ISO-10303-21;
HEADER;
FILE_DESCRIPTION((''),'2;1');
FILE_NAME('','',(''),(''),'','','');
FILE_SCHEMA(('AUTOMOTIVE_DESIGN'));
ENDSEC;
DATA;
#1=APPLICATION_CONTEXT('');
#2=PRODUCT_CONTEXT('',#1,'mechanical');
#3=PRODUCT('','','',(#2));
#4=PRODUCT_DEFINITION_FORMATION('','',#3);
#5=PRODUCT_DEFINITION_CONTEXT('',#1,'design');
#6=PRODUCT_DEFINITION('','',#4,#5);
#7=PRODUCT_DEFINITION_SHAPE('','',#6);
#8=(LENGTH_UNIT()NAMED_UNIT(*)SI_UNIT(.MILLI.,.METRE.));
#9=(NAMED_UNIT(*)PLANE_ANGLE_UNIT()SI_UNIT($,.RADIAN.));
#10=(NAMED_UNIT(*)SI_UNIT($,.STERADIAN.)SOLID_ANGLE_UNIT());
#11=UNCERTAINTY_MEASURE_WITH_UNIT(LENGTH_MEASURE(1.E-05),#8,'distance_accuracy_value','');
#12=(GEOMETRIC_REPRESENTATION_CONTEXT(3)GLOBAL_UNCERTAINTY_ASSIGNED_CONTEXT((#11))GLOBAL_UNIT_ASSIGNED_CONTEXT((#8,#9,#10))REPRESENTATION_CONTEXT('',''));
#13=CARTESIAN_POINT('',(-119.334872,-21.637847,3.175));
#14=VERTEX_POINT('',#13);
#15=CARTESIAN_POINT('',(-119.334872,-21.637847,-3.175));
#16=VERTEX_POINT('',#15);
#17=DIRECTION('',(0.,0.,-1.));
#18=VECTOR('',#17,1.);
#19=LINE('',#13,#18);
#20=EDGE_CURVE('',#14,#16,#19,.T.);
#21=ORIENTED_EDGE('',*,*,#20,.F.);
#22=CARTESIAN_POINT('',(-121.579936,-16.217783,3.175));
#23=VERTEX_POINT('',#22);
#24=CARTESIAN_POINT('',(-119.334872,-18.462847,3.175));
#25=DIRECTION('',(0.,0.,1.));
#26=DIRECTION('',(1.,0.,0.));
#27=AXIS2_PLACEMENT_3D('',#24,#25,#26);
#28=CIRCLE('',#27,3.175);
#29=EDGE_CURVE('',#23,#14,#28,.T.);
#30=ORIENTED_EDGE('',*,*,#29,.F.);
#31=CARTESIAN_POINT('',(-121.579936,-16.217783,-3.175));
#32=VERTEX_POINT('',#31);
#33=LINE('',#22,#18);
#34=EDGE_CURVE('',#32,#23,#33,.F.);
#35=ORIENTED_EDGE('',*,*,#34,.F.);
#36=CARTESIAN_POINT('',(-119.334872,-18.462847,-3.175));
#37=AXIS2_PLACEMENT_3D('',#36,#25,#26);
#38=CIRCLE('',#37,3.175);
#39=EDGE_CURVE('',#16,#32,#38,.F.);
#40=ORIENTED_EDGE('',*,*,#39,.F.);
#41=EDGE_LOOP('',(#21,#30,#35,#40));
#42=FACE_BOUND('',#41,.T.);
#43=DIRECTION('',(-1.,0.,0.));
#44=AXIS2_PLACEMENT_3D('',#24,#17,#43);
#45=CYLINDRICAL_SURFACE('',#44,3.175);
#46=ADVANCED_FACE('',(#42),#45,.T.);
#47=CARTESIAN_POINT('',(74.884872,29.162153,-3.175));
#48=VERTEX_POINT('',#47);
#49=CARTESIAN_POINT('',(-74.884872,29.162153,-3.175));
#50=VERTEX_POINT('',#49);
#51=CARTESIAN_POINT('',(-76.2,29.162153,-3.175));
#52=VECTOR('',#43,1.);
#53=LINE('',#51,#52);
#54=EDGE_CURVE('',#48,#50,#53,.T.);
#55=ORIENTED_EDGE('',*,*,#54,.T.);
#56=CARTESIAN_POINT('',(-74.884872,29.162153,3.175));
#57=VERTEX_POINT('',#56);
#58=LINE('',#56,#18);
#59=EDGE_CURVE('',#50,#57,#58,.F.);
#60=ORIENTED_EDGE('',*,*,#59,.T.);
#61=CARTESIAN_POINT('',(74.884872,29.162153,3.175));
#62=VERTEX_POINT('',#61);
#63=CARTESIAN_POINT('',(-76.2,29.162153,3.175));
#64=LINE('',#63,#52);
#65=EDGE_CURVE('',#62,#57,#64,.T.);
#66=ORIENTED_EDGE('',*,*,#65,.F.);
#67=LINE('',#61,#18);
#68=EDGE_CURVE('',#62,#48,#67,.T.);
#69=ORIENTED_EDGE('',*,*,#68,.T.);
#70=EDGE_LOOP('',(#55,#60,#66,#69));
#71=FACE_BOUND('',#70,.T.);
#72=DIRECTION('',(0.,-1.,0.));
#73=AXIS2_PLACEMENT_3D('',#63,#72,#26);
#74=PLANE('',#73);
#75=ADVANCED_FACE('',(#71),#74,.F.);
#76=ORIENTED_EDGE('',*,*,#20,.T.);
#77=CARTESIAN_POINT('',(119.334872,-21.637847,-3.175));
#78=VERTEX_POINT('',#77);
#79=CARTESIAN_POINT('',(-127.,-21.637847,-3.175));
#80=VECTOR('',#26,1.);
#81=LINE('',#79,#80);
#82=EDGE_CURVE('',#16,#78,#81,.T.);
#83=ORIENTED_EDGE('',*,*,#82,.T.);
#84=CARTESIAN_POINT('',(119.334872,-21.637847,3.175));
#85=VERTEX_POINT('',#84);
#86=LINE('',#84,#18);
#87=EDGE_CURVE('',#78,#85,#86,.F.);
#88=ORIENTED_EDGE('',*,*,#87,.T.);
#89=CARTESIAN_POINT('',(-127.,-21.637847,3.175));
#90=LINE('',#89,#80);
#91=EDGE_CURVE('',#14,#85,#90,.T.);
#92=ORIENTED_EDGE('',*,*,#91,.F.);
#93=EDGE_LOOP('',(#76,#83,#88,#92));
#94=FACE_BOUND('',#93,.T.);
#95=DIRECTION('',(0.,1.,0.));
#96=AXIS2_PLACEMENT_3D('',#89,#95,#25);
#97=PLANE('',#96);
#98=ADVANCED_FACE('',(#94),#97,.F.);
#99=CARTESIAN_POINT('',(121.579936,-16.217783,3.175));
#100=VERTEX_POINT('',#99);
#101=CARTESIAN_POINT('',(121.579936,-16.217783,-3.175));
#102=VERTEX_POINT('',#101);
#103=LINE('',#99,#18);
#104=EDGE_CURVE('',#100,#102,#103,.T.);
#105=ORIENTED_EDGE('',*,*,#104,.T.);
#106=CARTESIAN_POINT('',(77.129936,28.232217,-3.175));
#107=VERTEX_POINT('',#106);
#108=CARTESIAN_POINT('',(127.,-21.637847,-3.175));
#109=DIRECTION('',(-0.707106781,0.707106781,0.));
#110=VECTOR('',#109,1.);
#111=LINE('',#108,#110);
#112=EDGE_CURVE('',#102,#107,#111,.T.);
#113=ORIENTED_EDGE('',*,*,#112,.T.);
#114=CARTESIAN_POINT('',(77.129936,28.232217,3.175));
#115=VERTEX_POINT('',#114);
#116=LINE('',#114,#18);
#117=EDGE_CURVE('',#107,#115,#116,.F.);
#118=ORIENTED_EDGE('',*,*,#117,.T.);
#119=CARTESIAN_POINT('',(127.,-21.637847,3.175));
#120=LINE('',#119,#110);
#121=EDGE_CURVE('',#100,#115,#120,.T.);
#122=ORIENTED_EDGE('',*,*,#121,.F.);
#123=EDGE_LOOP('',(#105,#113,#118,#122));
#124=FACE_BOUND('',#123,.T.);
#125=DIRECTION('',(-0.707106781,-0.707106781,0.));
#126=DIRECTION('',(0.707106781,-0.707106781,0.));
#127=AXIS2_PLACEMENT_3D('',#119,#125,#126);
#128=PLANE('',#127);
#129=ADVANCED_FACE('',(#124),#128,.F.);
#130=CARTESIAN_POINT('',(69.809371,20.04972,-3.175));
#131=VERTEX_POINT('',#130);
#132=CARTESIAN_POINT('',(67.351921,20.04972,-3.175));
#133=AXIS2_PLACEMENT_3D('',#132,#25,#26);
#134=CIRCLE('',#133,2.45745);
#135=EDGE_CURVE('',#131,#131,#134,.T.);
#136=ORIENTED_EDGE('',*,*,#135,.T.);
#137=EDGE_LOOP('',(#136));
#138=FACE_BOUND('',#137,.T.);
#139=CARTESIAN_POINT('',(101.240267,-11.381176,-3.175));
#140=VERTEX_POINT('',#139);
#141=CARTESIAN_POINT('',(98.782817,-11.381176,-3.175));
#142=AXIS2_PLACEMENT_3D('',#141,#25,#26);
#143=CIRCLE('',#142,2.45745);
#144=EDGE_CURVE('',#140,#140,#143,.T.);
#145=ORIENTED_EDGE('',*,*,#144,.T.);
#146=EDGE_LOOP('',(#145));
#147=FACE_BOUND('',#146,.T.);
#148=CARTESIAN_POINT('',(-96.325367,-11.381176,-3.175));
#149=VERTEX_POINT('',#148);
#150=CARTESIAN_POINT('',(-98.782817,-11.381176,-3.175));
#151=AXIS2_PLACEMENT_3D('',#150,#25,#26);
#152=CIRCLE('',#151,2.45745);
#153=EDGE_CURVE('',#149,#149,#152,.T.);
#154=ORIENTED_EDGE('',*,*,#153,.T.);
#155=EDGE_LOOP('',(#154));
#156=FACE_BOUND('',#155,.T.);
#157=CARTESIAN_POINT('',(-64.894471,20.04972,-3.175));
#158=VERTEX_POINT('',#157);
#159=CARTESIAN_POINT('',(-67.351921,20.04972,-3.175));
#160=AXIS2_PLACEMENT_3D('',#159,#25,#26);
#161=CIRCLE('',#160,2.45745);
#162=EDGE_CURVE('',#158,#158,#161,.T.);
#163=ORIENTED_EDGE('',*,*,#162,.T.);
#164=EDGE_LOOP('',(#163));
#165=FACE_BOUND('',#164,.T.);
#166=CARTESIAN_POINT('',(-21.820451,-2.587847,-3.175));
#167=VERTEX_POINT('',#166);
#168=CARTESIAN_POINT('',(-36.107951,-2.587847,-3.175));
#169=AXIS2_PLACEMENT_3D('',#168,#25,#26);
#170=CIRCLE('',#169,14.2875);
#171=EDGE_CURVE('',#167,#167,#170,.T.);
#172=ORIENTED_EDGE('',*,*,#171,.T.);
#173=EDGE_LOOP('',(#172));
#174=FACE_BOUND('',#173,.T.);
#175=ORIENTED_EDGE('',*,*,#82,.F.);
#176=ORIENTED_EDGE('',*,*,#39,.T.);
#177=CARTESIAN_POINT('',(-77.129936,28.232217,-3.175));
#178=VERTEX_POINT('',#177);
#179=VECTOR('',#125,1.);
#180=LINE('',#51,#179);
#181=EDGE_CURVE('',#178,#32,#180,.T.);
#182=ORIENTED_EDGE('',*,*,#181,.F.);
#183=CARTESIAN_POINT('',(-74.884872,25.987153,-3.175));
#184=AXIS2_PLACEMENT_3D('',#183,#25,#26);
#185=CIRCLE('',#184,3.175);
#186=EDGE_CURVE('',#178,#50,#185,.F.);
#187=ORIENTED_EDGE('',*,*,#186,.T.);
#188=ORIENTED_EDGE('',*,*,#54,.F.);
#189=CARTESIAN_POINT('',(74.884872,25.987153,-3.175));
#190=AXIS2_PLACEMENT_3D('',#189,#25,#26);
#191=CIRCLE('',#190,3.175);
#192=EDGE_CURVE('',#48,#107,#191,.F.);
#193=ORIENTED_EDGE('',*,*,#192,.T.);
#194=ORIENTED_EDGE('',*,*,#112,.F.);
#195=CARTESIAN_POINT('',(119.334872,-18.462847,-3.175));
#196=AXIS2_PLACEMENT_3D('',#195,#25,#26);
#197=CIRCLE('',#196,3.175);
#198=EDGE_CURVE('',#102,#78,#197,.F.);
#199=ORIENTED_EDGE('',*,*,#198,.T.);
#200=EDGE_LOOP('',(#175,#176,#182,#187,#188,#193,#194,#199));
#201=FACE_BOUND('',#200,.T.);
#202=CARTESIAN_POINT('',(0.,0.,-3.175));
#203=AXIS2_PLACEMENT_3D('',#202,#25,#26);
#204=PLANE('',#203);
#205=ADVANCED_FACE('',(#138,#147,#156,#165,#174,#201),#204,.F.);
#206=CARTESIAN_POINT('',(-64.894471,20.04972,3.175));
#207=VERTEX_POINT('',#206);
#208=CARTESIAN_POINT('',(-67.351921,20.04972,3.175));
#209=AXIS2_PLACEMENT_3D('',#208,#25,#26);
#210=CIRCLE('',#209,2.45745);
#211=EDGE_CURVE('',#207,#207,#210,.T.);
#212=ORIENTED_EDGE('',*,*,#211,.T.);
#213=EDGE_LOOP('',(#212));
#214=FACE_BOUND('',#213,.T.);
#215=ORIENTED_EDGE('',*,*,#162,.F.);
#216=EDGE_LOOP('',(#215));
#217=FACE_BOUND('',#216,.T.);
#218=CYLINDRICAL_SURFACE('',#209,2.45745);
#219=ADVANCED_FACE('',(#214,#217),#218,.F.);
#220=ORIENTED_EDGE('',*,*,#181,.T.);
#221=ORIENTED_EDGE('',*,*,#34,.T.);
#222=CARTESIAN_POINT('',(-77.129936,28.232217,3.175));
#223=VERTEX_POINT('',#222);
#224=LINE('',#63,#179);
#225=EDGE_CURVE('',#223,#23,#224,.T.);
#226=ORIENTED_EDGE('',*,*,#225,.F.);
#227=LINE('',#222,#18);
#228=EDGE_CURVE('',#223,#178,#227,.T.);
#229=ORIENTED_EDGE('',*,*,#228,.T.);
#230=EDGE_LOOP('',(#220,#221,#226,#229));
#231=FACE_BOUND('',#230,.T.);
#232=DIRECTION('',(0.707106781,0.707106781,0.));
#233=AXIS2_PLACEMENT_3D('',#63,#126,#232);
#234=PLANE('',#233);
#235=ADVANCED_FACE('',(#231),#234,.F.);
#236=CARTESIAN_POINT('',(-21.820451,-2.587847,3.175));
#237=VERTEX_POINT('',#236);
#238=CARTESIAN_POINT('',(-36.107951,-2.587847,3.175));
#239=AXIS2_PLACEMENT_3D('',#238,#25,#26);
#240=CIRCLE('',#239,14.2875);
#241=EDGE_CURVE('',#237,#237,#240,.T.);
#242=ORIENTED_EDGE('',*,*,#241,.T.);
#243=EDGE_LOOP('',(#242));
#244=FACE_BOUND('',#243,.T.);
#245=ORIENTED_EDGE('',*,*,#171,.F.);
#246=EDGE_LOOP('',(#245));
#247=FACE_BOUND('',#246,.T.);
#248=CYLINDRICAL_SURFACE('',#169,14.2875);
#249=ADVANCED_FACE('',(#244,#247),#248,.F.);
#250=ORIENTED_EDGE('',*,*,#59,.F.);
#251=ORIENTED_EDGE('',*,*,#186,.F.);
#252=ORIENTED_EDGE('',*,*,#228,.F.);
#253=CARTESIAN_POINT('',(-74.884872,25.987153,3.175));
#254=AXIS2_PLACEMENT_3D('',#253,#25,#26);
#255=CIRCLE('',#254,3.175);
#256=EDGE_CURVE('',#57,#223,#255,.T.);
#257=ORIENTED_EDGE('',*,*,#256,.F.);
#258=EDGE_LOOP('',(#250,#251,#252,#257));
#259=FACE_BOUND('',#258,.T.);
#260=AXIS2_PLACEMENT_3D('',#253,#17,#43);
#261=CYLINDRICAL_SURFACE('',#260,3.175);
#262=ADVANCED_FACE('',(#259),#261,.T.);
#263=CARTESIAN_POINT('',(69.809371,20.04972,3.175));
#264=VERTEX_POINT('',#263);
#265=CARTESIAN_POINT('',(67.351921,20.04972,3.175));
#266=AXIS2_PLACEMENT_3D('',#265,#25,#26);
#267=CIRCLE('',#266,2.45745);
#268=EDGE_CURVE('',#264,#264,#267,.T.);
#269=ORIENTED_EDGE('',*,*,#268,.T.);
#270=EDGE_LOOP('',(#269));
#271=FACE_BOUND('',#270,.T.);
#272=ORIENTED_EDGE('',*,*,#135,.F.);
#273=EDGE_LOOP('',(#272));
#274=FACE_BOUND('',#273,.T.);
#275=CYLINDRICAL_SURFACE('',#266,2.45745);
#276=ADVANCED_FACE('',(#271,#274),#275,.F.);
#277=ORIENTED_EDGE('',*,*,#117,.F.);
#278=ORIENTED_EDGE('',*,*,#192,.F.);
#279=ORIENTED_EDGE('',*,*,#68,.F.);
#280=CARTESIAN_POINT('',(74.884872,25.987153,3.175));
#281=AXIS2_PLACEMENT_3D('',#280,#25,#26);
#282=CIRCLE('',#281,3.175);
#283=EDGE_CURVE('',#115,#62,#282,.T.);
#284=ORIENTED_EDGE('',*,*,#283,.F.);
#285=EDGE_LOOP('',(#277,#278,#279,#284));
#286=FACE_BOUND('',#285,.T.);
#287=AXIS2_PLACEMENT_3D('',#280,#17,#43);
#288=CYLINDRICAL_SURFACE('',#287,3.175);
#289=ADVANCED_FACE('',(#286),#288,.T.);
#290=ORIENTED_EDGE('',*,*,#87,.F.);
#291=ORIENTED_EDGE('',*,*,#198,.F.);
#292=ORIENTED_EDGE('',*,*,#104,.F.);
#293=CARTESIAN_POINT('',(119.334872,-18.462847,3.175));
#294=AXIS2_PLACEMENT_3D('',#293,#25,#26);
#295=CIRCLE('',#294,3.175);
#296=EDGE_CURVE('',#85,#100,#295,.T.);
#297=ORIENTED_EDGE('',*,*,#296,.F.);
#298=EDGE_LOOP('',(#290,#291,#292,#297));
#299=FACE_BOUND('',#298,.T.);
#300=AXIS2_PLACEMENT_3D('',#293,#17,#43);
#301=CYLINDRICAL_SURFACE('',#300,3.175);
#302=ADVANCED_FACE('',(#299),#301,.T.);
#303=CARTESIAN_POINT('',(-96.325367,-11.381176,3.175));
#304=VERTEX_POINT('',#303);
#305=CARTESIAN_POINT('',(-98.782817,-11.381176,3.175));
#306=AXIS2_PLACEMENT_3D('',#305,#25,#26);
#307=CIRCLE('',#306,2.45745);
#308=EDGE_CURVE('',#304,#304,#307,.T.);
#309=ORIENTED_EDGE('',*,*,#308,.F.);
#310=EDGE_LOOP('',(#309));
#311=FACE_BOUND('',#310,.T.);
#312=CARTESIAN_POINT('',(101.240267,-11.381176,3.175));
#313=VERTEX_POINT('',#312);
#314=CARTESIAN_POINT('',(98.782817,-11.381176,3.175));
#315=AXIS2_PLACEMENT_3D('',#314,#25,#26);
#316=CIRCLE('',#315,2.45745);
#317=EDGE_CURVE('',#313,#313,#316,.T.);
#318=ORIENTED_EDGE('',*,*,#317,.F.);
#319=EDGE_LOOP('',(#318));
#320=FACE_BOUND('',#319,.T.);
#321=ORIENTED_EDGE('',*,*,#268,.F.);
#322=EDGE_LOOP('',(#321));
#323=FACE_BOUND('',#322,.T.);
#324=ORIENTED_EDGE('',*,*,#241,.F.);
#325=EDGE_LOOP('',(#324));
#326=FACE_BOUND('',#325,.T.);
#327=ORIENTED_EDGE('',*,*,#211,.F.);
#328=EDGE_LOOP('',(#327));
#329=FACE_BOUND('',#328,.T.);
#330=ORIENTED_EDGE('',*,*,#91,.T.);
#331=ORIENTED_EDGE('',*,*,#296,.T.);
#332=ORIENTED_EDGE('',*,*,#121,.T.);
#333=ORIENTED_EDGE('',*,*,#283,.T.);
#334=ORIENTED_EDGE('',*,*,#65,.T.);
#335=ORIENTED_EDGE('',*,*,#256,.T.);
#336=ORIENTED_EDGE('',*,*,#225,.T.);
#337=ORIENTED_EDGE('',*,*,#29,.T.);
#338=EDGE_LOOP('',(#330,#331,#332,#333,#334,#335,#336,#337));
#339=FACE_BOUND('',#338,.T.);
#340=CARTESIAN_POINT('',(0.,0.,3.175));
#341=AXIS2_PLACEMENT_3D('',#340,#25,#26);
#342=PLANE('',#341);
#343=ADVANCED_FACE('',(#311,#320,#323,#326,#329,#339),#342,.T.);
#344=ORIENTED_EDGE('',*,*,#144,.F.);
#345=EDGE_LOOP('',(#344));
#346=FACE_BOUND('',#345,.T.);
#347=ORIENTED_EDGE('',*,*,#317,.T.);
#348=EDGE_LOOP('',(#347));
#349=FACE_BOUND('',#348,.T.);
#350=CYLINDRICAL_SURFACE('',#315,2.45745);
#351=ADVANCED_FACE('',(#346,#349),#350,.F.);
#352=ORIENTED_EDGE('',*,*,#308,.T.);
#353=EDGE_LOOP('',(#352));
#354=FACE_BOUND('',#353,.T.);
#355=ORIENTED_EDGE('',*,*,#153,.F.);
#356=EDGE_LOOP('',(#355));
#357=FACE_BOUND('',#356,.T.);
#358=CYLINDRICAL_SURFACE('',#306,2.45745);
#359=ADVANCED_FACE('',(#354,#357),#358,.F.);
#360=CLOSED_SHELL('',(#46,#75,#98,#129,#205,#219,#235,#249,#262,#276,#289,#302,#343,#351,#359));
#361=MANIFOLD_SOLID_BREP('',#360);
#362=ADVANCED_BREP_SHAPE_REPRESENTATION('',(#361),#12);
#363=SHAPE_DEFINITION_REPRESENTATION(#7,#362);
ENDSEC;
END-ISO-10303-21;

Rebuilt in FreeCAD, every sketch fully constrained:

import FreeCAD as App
import Part
import Sketcher
from FreeCAD import Vector
Q = App.Units.Quantity


def edges_at(feature, points):
    """Names of the edges that pass closest to the given points."""
    edges = feature.Shape.Edges
    near = lambda p: min(range(len(edges)), key=lambda i: edges[i].distToShape(Part.Vertex(*p))[0])
    return sorted({f"Edge{near(p) + 1}" for p in points})


def add_polygon(sketch, points):
    """Adds a closed chain of lines whose ends are joined by coincident constraints."""
    first, n = sketch.GeometryCount, len(points)
    for a, b in zip(points, points[1:] + points[:1]):
        sketch.addGeometry(Part.LineSegment(App.Vector(*a, 0), App.Vector(*b, 0)), False)
    for i in range(n):
        sketch.addConstraint(Sketcher.Constraint("Coincident", first + i, 2, first + (i + 1) % n, 1))

doc = App.newDocument("Part")
body = doc.addObject("PartDesign::Body", "Body")

# Sketch on XY plane
sketch1 = doc.addObject("Sketcher::SketchObject", "Sketch")
body.addObject(sketch1)
sketch1.AttachmentSupport = (doc.XY_Plane, [""])
sketch1.MapMode = "FlatFace"
add_polygon(sketch1, [(-76, 29), (-127, -22), (127, -22), (76, 29)])  # lines 0-3
sketch1.addConstraint([
    Sketcher.Constraint("Horizontal", 1),
    Sketcher.Constraint("Horizontal", 3),
    Sketcher.Constraint("Perpendicular", 0, 2),
    Sketcher.Constraint("Equal", 0, 2),
    Sketcher.Constraint("DistanceX", 1, 1, 1, 2, Q("10 in")),
    Sketcher.Constraint("DistanceX", 3, 2, 3, 1, Q("6 in")),
    Sketcher.Constraint("DistanceX", 0, 2, -1, 1, Q("5 in")),
    Sketcher.Constraint("DistanceY", 0, 2, -1, 1, 21.637847),
])
pad1 = doc.addObject("PartDesign::Pad", "Pad")
body.addObject(pad1)
pad1.Profile = sketch1
pad1.Length = Q("0.25 in")
pad1.Midplane = True

# Sketch on XY plane
sketch2 = doc.addObject("Sketcher::SketchObject", "Sketch001")
body.addObject(sketch2)
sketch2.AttachmentSupport = (doc.XY_Plane, [""])
sketch2.MapMode = "FlatFace"
sketch2.AttachmentOffset = App.Placement(Vector(0, 0, 0.125 * 25.4), App.Rotation())
sketch2.addGeometry(Part.Circle(Vector(-36, -3, 0), Vector(0, 0, 1), 14), False)
sketch2.addConstraint([
    Sketcher.Constraint("Diameter", 0, Q("1.125 in")),
    Sketcher.Constraint("DistanceX", 0, 3, -1, 1, 36.107951),
    Sketcher.Constraint("DistanceY", 0, 3, -1, 1, 2.587847),
])
pocket1 = doc.addObject("PartDesign::Pocket", "Pocket")
body.addObject(pocket1)
pocket1.Profile = sketch2
pocket1.Type = "ThroughAll"

# Sketch on XY plane
sketch3 = doc.addObject("Sketcher::SketchObject", "Sketch002")
body.addObject(sketch3)
sketch3.AttachmentSupport = (doc.XY_Plane, [""])
sketch3.MapMode = "FlatFace"
sketch3.AttachmentOffset = App.Placement(Vector(0, 0, 0.125 * 25.4), App.Rotation())
sketch3.addGeometry([
    Part.Circle(Vector(67.4, 20, 0), Vector(0, 0, 1), 2.5),
    Part.Circle(Vector(98.8, -11.4, 0), Vector(0, 0, 1), 2.5),
    Part.Circle(Vector(-67.4, 20, 0), Vector(0, 0, 1), 2.5),
    Part.Circle(Vector(-98.8, -11.4, 0), Vector(0, 0, 1), 2.5),
], False)
sketch3.addConstraint([
    Sketcher.Constraint("Equal", 0, 1),
    Sketcher.Constraint("Equal", 1, 2),
    Sketcher.Constraint("Equal", 2, 3),
    Sketcher.Constraint("Symmetric", 0, 3, 2, 3, -2),
    Sketcher.Constraint("Symmetric", 1, 3, 3, 3, -2),
    Sketcher.Constraint("Diameter", 0, Q("0.1935 in")),
    Sketcher.Constraint("DistanceX", -1, 1, 0, 3, 67.351921),
    Sketcher.Constraint("DistanceY", -1, 1, 0, 3, 20.04972),
    Sketcher.Constraint("DistanceX", 2, 3, 1, 3, 166.134738),
    Sketcher.Constraint("DistanceY", 1, 3, -1, 1, 11.381176),
])
doc.recompute()
hole = doc.addObject("PartDesign::Hole", "Hole")
body.addObject(hole)
hole.Profile = sketch3
hole.ThreadType = "None"
hole.Diameter = Q("0.1935 in")
hole.DepthType = "ThroughAll"
doc.recompute()

fillet = doc.addObject("PartDesign::Fillet", "Fillet")
body.addObject(fillet)
fillet.Base = (hole, edges_at(hole, [
    (76.2, 29.162, 0),
    (127, -21.638, 0),
    (-127, -21.638, 0),
    (-76.2, 29.162, 0),
]))
fillet.Radius = Q("0.125 in")

doc.recompute()
